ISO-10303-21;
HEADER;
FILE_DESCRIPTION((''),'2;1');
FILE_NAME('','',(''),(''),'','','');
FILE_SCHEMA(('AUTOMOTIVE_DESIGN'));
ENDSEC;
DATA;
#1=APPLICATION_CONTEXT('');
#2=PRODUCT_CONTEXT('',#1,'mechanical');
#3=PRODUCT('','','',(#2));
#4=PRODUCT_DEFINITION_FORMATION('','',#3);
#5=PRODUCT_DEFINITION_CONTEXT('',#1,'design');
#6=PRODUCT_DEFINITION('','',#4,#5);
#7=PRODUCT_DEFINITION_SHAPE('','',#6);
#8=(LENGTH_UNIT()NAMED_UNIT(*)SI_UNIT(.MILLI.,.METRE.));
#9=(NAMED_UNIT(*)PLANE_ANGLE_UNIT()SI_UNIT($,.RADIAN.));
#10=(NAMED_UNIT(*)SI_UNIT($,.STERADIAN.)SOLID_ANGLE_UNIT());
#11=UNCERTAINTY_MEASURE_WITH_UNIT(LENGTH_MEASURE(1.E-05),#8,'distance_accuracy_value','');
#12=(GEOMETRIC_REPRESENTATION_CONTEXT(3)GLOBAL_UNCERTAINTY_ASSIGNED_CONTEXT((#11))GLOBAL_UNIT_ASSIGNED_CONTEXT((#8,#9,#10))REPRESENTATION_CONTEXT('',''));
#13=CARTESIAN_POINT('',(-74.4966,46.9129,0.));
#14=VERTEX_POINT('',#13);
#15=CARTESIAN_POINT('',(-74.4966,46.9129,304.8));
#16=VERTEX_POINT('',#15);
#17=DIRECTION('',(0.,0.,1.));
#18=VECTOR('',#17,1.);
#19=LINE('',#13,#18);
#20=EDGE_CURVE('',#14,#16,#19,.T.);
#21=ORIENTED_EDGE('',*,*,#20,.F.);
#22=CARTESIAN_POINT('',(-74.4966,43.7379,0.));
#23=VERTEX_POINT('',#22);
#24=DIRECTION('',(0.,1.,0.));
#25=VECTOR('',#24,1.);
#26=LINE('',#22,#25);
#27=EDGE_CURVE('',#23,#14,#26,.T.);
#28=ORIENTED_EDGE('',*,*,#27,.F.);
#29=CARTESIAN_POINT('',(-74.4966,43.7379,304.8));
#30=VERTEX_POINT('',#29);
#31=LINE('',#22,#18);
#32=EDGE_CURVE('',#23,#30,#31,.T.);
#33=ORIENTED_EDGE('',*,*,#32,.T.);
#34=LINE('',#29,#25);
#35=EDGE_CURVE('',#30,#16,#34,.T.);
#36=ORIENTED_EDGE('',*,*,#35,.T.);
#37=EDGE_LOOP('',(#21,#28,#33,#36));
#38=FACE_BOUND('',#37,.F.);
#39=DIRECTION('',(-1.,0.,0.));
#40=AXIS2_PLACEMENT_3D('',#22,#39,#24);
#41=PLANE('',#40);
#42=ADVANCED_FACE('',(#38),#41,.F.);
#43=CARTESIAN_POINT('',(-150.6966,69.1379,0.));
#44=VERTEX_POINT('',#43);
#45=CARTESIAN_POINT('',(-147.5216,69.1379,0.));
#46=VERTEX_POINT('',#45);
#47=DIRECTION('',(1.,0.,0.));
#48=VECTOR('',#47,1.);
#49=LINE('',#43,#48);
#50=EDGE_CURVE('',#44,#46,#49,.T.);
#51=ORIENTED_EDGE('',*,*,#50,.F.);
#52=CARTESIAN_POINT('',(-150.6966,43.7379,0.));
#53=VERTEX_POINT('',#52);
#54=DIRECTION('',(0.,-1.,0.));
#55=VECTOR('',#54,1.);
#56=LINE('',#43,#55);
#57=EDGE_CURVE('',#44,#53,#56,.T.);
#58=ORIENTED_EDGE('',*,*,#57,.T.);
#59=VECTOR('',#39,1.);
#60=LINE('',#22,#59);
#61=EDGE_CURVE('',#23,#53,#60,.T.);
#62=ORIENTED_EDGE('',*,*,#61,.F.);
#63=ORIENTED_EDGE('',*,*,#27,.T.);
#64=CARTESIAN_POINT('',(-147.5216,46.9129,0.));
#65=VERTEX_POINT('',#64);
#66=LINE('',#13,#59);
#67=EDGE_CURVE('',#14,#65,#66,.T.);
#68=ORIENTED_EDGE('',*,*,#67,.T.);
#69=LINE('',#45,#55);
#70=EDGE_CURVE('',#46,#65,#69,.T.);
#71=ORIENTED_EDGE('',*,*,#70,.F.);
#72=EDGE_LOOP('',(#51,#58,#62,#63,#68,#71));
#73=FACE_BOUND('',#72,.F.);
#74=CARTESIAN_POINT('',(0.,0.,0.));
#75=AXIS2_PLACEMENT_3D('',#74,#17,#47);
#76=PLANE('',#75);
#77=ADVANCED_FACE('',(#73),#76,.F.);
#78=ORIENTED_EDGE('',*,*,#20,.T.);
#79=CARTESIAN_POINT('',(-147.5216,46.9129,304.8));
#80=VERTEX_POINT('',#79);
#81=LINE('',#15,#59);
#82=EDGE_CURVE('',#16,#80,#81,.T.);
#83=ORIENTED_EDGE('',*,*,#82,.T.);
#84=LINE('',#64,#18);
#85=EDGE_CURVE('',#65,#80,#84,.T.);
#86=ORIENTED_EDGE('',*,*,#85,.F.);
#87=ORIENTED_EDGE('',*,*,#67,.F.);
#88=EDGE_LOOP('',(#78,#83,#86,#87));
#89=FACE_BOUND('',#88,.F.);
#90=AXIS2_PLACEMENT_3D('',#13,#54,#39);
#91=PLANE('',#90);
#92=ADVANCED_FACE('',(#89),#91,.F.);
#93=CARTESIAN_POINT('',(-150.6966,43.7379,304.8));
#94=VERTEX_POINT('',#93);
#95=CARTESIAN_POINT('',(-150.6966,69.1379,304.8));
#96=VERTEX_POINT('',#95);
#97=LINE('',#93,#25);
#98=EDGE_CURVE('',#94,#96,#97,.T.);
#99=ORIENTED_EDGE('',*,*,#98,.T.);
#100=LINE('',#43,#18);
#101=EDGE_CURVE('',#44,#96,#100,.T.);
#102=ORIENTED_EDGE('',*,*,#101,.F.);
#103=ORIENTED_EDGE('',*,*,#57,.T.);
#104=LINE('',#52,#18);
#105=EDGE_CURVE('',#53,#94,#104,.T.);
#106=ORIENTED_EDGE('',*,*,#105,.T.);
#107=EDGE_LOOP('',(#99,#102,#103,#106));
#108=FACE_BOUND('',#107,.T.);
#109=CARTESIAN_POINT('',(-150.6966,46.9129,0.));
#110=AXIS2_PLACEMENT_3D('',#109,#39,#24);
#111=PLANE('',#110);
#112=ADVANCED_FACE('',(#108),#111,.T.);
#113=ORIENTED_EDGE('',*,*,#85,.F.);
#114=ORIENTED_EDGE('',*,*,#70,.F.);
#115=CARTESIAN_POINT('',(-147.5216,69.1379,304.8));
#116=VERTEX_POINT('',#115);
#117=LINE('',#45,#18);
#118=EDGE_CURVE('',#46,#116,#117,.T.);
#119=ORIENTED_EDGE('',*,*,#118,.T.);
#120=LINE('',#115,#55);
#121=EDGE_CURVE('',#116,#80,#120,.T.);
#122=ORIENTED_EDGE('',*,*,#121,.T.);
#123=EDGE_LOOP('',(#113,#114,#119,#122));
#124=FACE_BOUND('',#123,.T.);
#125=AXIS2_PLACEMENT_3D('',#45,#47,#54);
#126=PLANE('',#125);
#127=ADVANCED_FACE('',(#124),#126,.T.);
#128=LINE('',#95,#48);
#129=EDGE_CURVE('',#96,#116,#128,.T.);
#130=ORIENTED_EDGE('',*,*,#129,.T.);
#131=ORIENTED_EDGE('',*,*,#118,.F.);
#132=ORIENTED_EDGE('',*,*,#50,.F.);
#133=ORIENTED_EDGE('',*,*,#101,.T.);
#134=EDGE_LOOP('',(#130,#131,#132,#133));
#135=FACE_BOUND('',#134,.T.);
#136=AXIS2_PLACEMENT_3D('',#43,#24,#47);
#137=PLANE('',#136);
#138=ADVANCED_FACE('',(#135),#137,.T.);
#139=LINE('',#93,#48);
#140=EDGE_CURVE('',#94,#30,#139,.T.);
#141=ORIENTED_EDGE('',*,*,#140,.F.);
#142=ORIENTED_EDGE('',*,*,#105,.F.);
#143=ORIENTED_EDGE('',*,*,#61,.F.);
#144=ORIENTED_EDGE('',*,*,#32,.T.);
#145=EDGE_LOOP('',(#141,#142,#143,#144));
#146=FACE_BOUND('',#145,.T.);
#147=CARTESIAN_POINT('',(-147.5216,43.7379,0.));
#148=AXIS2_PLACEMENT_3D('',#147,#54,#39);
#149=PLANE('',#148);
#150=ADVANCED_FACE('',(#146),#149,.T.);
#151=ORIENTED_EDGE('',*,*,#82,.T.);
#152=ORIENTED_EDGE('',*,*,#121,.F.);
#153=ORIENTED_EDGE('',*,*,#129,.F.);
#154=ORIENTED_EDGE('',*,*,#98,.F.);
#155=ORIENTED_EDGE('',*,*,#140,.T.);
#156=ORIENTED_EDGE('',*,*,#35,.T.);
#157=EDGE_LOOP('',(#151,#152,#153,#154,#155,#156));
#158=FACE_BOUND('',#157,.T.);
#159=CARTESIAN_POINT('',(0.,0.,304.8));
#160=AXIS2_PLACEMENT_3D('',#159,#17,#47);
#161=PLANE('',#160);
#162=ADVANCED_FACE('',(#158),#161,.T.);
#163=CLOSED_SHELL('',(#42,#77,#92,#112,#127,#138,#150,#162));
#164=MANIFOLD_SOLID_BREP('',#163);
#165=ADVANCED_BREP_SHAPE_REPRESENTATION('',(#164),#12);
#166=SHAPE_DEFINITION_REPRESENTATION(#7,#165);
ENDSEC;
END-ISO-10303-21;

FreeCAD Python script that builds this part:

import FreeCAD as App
import Part
import Sketcher

V = App.Vector
Q = App.Units.Quantity


def add_polygon(sketch, points):
    """Adds a closed chain of lines whose ends are joined by coincident constraints."""
    first, n = sketch.GeometryCount, len(points)
    for a, b in zip(points, points[1:] + points[:1]):
        sketch.addGeometry(Part.LineSegment(App.Vector(*a, 0), App.Vector(*b, 0)), False)
    for i in range(n):
        sketch.addConstraint(Sketcher.Constraint("Coincident", first + i, 2, first + (i + 1) % n, 1))

doc = App.newDocument("Part")
body = doc.addObject("PartDesign::Body", "Body")

# Sketch on XY plane
sketch1 = doc.addObject("Sketcher::SketchObject", "Sketch")
body.addObject(sketch1)
sketch1.AttachmentSupport = (doc.XY_Plane, [""])
sketch1.MapMode = "FlatFace"
add_polygon(sketch1, [(-147.5, 69.1), (-150.7, 69.1), (-150.7, 43.7), (-74.5, 43.7), (-74.5, 46.9), (-147.5, 46.9)])  # lines 0-5
sketch1.addConstraint([
    Sketcher.Constraint("Horizontal", 0),
    Sketcher.Constraint("Vertical", 1),
    Sketcher.Constraint("Horizontal", 2),
    Sketcher.Constraint("Vertical", 3),
    Sketcher.Constraint("Horizontal", 4),
    Sketcher.Constraint("Vertical", 5),
    Sketcher.Constraint("Equal", 0, 3),
    Sketcher.Constraint("DistanceX", 2, 1, 2, 2, Q("3 in")),
    Sketcher.Constraint("DistanceY", 1, 2, 1, 1, Q("1 in")),
    Sketcher.Constraint("DistanceX", 0, 2, 0, 1, Q("0.125 in")),
    Sketcher.Constraint("DistanceX", 0, 2, -1, 1, Q("150.6966 mm")),
    Sketcher.Constraint("DistanceY", -1, 1, 0, 2, Q("69.138 mm")),
])
pad1 = doc.addObject("PartDesign::Pad", "Pad")
body.addObject(pad1)
pad1.Profile = sketch1
pad1.Length = Q("12 in")

doc.recompute()
